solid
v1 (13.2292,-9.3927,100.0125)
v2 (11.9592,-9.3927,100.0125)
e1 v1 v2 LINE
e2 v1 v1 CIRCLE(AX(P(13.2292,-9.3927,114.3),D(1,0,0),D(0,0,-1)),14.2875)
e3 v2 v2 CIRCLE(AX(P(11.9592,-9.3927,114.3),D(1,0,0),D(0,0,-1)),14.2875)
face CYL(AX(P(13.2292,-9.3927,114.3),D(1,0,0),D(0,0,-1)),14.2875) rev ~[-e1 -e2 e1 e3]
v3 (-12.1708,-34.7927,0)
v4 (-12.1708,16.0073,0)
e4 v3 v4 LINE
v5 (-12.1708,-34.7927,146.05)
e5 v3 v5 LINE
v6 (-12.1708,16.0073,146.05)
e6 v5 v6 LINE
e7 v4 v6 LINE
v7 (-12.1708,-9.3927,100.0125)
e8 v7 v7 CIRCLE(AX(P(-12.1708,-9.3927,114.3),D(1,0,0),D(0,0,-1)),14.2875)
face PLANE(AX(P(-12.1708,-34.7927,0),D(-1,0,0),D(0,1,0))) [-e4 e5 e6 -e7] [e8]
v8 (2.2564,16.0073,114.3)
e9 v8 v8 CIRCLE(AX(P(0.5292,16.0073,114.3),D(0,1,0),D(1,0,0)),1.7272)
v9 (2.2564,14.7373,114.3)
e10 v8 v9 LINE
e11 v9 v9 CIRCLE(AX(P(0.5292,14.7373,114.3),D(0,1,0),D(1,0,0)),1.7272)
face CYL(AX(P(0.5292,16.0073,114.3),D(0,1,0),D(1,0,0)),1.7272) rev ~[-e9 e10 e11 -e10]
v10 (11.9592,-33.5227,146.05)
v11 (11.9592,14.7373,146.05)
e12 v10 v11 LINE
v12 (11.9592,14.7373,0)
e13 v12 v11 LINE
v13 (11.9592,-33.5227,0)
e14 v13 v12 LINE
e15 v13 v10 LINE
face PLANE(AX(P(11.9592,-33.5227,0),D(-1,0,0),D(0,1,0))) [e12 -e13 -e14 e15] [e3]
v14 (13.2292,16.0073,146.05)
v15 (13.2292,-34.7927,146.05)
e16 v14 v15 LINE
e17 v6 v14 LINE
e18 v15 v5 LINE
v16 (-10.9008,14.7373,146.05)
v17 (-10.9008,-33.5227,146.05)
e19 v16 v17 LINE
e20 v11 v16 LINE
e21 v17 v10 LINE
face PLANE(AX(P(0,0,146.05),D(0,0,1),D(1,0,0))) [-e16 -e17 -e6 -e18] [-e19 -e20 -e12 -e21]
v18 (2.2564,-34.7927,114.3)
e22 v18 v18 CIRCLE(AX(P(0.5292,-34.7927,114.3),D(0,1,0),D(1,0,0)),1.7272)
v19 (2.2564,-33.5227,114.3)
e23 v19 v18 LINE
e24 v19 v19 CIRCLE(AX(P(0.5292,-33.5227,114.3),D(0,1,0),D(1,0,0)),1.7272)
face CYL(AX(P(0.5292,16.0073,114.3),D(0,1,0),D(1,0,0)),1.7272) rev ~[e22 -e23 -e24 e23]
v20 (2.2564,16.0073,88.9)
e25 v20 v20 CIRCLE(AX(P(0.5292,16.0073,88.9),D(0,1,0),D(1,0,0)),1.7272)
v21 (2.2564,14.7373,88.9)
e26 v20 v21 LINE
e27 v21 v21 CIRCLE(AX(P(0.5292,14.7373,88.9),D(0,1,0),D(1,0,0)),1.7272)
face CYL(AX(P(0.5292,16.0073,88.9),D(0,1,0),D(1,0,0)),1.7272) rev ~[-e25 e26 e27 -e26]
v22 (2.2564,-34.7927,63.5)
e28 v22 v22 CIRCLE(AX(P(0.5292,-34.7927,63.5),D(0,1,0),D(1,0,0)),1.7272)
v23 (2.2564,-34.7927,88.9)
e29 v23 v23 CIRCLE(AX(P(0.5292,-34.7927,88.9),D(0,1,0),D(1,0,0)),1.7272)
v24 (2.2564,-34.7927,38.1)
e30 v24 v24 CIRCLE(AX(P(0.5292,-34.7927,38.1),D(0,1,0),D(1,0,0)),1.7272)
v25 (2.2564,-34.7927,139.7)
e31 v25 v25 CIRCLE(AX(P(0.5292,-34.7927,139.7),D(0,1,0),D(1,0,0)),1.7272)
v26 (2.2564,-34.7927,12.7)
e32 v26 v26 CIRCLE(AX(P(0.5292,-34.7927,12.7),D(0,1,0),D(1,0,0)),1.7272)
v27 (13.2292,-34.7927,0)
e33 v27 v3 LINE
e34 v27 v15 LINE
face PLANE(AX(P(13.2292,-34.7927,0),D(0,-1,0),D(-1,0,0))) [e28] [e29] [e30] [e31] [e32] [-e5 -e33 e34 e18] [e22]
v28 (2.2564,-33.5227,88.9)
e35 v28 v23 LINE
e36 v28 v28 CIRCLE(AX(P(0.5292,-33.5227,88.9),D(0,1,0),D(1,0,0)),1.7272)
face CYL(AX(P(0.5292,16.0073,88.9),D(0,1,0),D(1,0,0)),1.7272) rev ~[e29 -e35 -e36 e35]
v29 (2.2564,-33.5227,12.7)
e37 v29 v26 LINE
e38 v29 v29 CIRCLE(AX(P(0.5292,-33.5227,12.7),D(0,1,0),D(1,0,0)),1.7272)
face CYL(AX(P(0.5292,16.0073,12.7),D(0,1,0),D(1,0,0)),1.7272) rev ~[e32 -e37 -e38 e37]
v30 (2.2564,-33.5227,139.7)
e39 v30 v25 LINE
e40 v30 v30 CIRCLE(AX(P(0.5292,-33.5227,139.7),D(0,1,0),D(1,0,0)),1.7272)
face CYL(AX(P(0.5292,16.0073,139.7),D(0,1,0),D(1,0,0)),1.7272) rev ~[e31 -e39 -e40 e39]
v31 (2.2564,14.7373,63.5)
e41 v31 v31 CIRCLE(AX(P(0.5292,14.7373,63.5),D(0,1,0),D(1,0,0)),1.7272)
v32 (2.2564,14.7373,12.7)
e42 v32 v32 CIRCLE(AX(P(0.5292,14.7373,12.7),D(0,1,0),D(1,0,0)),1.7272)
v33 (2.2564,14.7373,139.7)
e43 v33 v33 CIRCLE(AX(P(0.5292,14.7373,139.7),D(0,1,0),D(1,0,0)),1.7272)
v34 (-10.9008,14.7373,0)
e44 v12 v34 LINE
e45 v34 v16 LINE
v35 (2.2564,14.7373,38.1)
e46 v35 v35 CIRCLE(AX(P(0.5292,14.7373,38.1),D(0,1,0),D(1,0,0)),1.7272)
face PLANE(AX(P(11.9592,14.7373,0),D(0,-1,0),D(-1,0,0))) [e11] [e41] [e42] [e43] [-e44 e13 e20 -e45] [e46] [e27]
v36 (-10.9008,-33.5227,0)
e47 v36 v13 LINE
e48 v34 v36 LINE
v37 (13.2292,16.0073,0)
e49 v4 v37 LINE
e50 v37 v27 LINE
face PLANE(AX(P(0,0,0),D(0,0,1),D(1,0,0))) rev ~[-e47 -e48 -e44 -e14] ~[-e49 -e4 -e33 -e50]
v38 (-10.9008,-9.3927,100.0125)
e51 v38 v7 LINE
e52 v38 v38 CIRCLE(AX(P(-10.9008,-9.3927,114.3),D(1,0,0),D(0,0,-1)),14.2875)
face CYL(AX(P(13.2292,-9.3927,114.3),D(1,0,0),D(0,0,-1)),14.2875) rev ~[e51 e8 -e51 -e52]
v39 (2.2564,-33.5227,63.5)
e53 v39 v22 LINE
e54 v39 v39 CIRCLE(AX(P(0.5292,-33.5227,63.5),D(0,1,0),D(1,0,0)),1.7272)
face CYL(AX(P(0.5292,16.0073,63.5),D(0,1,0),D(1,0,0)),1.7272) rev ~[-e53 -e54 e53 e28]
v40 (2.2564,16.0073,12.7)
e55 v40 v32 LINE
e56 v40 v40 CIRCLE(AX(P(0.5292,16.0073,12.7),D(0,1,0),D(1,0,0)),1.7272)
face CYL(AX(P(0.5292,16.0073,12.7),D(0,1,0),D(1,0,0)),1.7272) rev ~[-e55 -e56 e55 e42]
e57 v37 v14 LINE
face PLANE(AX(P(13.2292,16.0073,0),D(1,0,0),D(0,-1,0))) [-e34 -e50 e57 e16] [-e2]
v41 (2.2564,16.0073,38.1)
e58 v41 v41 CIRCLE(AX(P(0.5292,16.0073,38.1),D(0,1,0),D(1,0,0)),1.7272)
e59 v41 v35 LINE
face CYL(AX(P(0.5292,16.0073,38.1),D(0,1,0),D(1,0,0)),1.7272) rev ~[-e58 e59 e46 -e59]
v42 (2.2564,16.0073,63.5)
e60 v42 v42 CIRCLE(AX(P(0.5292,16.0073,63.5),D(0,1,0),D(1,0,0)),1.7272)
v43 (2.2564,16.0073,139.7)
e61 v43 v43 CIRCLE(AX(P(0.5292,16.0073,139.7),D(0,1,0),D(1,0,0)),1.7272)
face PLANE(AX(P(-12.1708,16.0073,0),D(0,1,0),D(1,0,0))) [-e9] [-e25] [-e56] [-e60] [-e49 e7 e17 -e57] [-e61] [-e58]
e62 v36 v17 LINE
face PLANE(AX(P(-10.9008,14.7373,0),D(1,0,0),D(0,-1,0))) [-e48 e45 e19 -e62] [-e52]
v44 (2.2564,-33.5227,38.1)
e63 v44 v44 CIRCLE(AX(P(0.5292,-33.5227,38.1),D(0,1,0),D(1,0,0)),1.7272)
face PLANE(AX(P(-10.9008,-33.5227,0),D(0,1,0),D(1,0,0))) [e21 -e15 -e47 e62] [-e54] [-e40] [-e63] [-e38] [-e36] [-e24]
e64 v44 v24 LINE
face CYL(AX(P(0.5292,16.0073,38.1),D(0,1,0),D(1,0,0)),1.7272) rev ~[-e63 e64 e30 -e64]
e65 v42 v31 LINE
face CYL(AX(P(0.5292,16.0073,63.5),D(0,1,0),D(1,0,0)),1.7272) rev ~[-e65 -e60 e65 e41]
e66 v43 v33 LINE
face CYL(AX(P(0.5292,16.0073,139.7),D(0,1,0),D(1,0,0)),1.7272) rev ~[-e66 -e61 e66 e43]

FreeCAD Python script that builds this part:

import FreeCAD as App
import Part
import Sketcher

V = App.Vector
Q = App.Units.Quantity

doc = App.newDocument("Part")
params = doc.addObject("Spreadsheet::Sheet", "Params")
for row, (alias, value) in enumerate([
    ("sketch1_width", "1 in"),
    ("sketch1_height", "2 in"),
    ("pad1_length", "5.75 in"),
    ("sketch2_diameter", "0.136 in"),
    ("linearpattern_pitch", "1 in"),
    ("sketch3_diameter", "1.125 in"),
    ("pocket2_length", "2 in"),
], start=1):
    params.set(f"A{row}", alias)
    params.set(f"B{row}", "=" + value)
    params.setAlias(f"B{row}", alias)

body = doc.addObject("PartDesign::Body", "Body")

# Sketch on XY plane
sketch1 = body.newObject("Sketcher::SketchObject", "Sketch")
sketch1.AttachmentSupport = (doc.getObject("XY_Plane"), [""])
sketch1.MapMode = "FlatFace"
sketch1.addGeometry(Part.LineSegment(V(13, 16, 0), V(-12, 16, 0)), False)
sketch1.addGeometry(Part.LineSegment(V(-12, 16, 0), V(-12, -35, 0)), False)
sketch1.addGeometry(Part.LineSegment(V(-12, -35, 0), V(13, -35, 0)), False)
sketch1.addGeometry(Part.LineSegment(V(13, -35, 0), V(13, 16, 0)), False)
sketch1.addGeometry(Part.LineSegment(V(-11, 15, 0), V(12, 15, 0)), False)
sketch1.addGeometry(Part.LineSegment(V(12, 15, 0), V(12, -34, 0)), False)
sketch1.addGeometry(Part.LineSegment(V(12, -34, 0), V(-11, -34, 0)), False)
sketch1.addGeometry(Part.LineSegment(V(-11, -34, 0), V(-11, 15, 0)), False)
sketch1.addConstraint(Sketcher.Constraint("Coincident", 0, 2, 1, 1))
sketch1.addConstraint(Sketcher.Constraint("Coincident", 1, 2, 2, 1))
sketch1.addConstraint(Sketcher.Constraint("Coincident", 2, 2, 3, 1))
sketch1.addConstraint(Sketcher.Constraint("Coincident", 3, 2, 0, 1))
sketch1.addConstraint(Sketcher.Constraint("Coincident", 4, 2, 5, 1))
sketch1.addConstraint(Sketcher.Constraint("Coincident", 5, 2, 6, 1))
sketch1.addConstraint(Sketcher.Constraint("Coincident", 6, 2, 7, 1))
sketch1.addConstraint(Sketcher.Constraint("Coincident", 7, 2, 4, 1))
sketch1.addConstraint(Sketcher.Constraint("Horizontal", 0))
sketch1.addConstraint(Sketcher.Constraint("Vertical", 1))
sketch1.addConstraint(Sketcher.Constraint("Horizontal", 2))
sketch1.addConstraint(Sketcher.Constraint("Vertical", 3))
sketch1.addConstraint(Sketcher.Constraint("Horizontal", 4))
sketch1.addConstraint(Sketcher.Constraint("Vertical", 5))
sketch1.addConstraint(Sketcher.Constraint("Horizontal", 6))
sketch1.addConstraint(Sketcher.Constraint("Vertical", 7))
sketch1.addConstraint(Sketcher.Constraint("DistanceX", 0, 2, 0, 1, Q("1 in")))
sketch1.addConstraint(Sketcher.Constraint("DistanceY", 1, 2, 1, 1, Q("2 in")))
sketch1.addConstraint(Sketcher.Constraint("DistanceX", 4, 2, 3, 2, Q("0.05 in")))
sketch1.addConstraint(Sketcher.Constraint("DistanceY", 4, 2, 3, 2, Q("0.05 in")))
sketch1.addConstraint(Sketcher.Constraint("DistanceY", 2, 2, 5, 2, Q("0.05 in")))
sketch1.addConstraint(Sketcher.Constraint("DistanceX", 1, 2, 6, 2, Q("0.05 in")))
sketch1.addConstraint(Sketcher.Constraint("DistanceY", -1, 1, 0, 2, Q("0.6302 in")))
sketch1.addConstraint(Sketcher.Constraint("DistanceX", 0, 2, -1, 1, Q("12.1708 mm")))
sketch1.setExpression("Constraints[16]", "Params.sketch1_width")
sketch1.setExpression("Constraints[17]", "Params.sketch1_height")
pad1 = body.newObject("PartDesign::Pad", "Pad")
pad1.Profile = sketch1
pad1.setExpression("Length", "Params.pad1_length")

# Sketch on XZ plane
sketch2 = body.newObject("Sketcher::SketchObject", "Sketch001")
sketch2.AttachmentSupport = (doc.getObject("XZ_Plane"), [""])
sketch2.MapMode = "FlatFace"
sketch2.AttachmentOffset = App.Placement(V(0, 0, -0.6302087 * 25.4), App.Rotation())
sketch2.addGeometry(Part.Circle(V(0.5, 12.7, 0), V(0, 0, 1), 1.7), False)
sketch2.addConstraint(Sketcher.Constraint("Diameter", 0, Q("0.136 in")))
sketch2.addConstraint(Sketcher.Constraint("DistanceY", -1, 1, 0, 3, Q("0.5 in")))
sketch2.addConstraint(Sketcher.Constraint("DistanceX", -1, 1, 0, 3, Q("0.5292 mm")))
sketch2.setExpression("Constraints[0]", "Params.sketch2_diameter")
pocket1 = body.newObject("PartDesign::Pocket", "Pocket")
pocket1.Profile = sketch2
pocket1.Type = "ThroughAll"
pocket1.Reversed = True
doc.recompute()

linearpattern = body.newObject("PartDesign::LinearPattern", "LinearPattern")
linearpattern.Originals = [pocket1]
linearpattern.Direction = (doc.getObject("Z_Axis"), [""])
linearpattern.Mode = "offset"
linearpattern.setExpression("Offset", "Params.linearpattern_pitch")
linearpattern.Occurrences = 15
body.Tip = linearpattern

# Sketch on YZ plane
sketch3 = body.newObject("Sketcher::SketchObject", "Sketch002")
sketch3.AttachmentSupport = (doc.getObject("YZ_Plane"), [""])
sketch3.MapMode = "FlatFace"
sketch3.AttachmentOffset = App.Placement(V(0, 0, 13.2292), App.Rotation())
sketch3.addGeometry(Part.Circle(V(-9, 114, 0), V(0, 0, 1), 14), False)
sketch3.addConstraint(Sketcher.Constraint("Diameter", 0, Q("1.125 in")))
sketch3.addConstraint(Sketcher.Constraint("DistanceY", -1, 1, 0, 3, Q("4.5 in")))
sketch3.addConstraint(Sketcher.Constraint("DistanceX", 0, 3, -1, 1, Q("0.3698 in")))
sketch3.setExpression("Constraints[0]", "Params.sketch3_diameter")
pocket2 = body.newObject("PartDesign::Pocket", "Pocket001")
pocket2.Profile = sketch3
pocket2.setExpression("Length", "Params.pocket2_length")

doc.recompute()
